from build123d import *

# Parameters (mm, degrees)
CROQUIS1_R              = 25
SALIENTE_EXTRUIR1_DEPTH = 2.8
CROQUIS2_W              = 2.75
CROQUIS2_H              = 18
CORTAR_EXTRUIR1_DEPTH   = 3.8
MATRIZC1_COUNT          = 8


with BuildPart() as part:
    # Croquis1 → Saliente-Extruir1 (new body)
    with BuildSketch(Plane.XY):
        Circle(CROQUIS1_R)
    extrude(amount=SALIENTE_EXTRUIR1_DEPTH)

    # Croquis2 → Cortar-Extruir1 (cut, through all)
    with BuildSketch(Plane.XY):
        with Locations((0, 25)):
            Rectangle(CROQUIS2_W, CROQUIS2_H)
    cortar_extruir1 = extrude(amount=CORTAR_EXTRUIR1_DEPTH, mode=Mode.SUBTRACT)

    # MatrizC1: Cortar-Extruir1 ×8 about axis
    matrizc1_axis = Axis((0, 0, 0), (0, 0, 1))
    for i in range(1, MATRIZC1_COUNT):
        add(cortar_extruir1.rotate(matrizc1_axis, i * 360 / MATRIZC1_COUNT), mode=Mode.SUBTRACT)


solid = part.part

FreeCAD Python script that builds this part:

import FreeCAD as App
import Part
import Sketcher

V = App.Vector


def add_polygon(sketch, points):
    """Adds a closed chain of lines whose ends are joined by coincident constraints."""
    first, n = sketch.GeometryCount, len(points)
    for a, b in zip(points, points[1:] + points[:1]):
        sketch.addGeometry(Part.LineSegment(App.Vector(*a, 0), App.Vector(*b, 0)), False)
    for i in range(n):
        sketch.addConstraint(Sketcher.Constraint("Coincident", first + i, 2, first + (i + 1) % n, 1))

doc = App.newDocument("Part")
body = doc.addObject("PartDesign::Body", "Body")

# Sketch on XY plane
sketch1 = body.newObject("Sketcher::SketchObject", "Sketch")
sketch1.AttachmentSupport = (doc.getObject("XY_Plane"), [""])
sketch1.MapMode = "FlatFace"
sketch1.addGeometry(Part.Circle(V(0, 0, 0), V(0, 0, 1), 25), False)
sketch1.addConstraint([
    Sketcher.Constraint("Coincident", 0, 3, -1, 1),
    Sketcher.Constraint("Diameter", 0, 50.0),
])
pad1 = body.newObject("PartDesign::Pad", "Pad")
pad1.Profile = sketch1
pad1.Length = 2.8

# Sketch on XY plane
sketch2 = body.newObject("Sketcher::SketchObject", "Sketch001")
sketch2.AttachmentSupport = (doc.getObject("XY_Plane"), [""])
sketch2.MapMode = "FlatFace"
add_polygon(sketch2, [(-1.375, 34), (-1.375, 16), (1.375, 16), (1.375, 34)])  # lines 0-3
sketch2.addConstraint([
    Sketcher.Constraint("Vertical", 0),
    Sketcher.Constraint("Horizontal", 1),
    Sketcher.Constraint("Vertical", 2),
    Sketcher.Constraint("Horizontal", 3),
    Sketcher.Constraint("DistanceY", 0, 2, 0, 1, 18.0),
    Sketcher.Constraint("DistanceY", -1, 1, 0, 2, 16.0),
    Sketcher.Constraint("DistanceX", 1, 1, 1, 2, 2.75),
    Sketcher.Constraint("DistanceX", 0, 2, -1, 1, 1.375),
])
pocket1 = body.newObject("PartDesign::Pocket", "Pocket")
pocket1.Profile = sketch2
pocket1.Type = "ThroughAll"
pocket1.Reversed = True
doc.recompute()

polarpattern = body.newObject("PartDesign::PolarPattern", "PolarPattern")
polarpattern.Originals = [pocket1]
polarpattern.Axis = (doc.getObject("Z_Axis"), [""])
polarpattern.Angle = 360
polarpattern.Occurrences = 8
body.Tip = polarpattern

doc.recompute()
